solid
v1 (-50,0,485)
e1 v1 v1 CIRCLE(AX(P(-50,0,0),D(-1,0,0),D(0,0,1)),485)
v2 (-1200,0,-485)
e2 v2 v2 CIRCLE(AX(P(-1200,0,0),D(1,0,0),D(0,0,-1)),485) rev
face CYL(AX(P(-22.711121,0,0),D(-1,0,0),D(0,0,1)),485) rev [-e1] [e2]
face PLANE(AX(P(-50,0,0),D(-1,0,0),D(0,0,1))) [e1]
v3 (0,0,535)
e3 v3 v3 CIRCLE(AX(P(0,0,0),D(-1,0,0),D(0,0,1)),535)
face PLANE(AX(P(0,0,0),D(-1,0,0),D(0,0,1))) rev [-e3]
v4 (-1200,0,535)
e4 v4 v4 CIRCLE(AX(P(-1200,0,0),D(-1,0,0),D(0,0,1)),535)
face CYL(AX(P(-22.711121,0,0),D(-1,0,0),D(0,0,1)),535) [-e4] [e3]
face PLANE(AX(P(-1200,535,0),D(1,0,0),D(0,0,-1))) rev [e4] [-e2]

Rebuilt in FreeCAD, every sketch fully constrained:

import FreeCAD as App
import Part
import Sketcher

V = App.Vector
Q = App.Units.Quantity


def faces_at(feature, points):
    """Names of the faces that lie closest to the given points."""
    faces = feature.Shape.Faces
    near = lambda p: min(range(len(faces)), key=lambda i: faces[i].distToShape(Part.Vertex(*p))[0])
    return sorted({f"Face{near(p) + 1}" for p in points})

doc = App.newDocument("Part")
body = doc.addObject("PartDesign::Body", "Body")

sketch1 = body.newObject("Sketcher::SketchObject", "Sketch")
sketch1.AttachmentSupport = (doc.getObject("XY_Plane"), [""])
sketch1.MapMode = "FlatFace"
sketch1.addGeometry([
    Part.LineSegment(V(-1200, 535, 0), V(-1200, 0, 0)),
    Part.LineSegment(V(-1200, 0, 0), V(0, 0, 0)),
    Part.LineSegment(V(0, 0, 0), V(0, 535, 0)),
    Part.LineSegment(V(0, 535, 0), V(-1200, 535, 0)),
], False)
sketch1.addConstraint([
    Sketcher.Constraint("Coincident", 0, 2, 1, 1),
    Sketcher.Constraint("Coincident", 1, 2, 2, 1),
    Sketcher.Constraint("Coincident", 2, 2, 3, 1),
    Sketcher.Constraint("Coincident", 3, 2, 0, 1),
    Sketcher.Constraint("Vertical", 0),
    Sketcher.Constraint("Horizontal", 1),
    Sketcher.Constraint("Vertical", 2),
    Sketcher.Constraint("Horizontal", 3),
    Sketcher.Constraint("Coincident", 1, 2, -1, 1),
    Sketcher.Constraint("DistanceX", 1, 1, 1, 2, Q("1200 mm")),
    Sketcher.Constraint("DistanceY", 0, 2, 0, 1, Q("535 mm")),
])
revolution = body.newObject("PartDesign::Revolution", "Revolution")
revolution.Profile = sketch1
revolution.ReferenceAxis = (sketch1, ["H_Axis"])
revolution.Angle = 360
doc.recompute()

thickness = body.newObject("PartDesign::Thickness", "Thickness")
thickness.Base = (revolution, faces_at(revolution, [(-1200, 0, 0)]))
thickness.Value = 50
thickness.Reversed = True
thickness.Join = "Intersection"

doc.recompute()
